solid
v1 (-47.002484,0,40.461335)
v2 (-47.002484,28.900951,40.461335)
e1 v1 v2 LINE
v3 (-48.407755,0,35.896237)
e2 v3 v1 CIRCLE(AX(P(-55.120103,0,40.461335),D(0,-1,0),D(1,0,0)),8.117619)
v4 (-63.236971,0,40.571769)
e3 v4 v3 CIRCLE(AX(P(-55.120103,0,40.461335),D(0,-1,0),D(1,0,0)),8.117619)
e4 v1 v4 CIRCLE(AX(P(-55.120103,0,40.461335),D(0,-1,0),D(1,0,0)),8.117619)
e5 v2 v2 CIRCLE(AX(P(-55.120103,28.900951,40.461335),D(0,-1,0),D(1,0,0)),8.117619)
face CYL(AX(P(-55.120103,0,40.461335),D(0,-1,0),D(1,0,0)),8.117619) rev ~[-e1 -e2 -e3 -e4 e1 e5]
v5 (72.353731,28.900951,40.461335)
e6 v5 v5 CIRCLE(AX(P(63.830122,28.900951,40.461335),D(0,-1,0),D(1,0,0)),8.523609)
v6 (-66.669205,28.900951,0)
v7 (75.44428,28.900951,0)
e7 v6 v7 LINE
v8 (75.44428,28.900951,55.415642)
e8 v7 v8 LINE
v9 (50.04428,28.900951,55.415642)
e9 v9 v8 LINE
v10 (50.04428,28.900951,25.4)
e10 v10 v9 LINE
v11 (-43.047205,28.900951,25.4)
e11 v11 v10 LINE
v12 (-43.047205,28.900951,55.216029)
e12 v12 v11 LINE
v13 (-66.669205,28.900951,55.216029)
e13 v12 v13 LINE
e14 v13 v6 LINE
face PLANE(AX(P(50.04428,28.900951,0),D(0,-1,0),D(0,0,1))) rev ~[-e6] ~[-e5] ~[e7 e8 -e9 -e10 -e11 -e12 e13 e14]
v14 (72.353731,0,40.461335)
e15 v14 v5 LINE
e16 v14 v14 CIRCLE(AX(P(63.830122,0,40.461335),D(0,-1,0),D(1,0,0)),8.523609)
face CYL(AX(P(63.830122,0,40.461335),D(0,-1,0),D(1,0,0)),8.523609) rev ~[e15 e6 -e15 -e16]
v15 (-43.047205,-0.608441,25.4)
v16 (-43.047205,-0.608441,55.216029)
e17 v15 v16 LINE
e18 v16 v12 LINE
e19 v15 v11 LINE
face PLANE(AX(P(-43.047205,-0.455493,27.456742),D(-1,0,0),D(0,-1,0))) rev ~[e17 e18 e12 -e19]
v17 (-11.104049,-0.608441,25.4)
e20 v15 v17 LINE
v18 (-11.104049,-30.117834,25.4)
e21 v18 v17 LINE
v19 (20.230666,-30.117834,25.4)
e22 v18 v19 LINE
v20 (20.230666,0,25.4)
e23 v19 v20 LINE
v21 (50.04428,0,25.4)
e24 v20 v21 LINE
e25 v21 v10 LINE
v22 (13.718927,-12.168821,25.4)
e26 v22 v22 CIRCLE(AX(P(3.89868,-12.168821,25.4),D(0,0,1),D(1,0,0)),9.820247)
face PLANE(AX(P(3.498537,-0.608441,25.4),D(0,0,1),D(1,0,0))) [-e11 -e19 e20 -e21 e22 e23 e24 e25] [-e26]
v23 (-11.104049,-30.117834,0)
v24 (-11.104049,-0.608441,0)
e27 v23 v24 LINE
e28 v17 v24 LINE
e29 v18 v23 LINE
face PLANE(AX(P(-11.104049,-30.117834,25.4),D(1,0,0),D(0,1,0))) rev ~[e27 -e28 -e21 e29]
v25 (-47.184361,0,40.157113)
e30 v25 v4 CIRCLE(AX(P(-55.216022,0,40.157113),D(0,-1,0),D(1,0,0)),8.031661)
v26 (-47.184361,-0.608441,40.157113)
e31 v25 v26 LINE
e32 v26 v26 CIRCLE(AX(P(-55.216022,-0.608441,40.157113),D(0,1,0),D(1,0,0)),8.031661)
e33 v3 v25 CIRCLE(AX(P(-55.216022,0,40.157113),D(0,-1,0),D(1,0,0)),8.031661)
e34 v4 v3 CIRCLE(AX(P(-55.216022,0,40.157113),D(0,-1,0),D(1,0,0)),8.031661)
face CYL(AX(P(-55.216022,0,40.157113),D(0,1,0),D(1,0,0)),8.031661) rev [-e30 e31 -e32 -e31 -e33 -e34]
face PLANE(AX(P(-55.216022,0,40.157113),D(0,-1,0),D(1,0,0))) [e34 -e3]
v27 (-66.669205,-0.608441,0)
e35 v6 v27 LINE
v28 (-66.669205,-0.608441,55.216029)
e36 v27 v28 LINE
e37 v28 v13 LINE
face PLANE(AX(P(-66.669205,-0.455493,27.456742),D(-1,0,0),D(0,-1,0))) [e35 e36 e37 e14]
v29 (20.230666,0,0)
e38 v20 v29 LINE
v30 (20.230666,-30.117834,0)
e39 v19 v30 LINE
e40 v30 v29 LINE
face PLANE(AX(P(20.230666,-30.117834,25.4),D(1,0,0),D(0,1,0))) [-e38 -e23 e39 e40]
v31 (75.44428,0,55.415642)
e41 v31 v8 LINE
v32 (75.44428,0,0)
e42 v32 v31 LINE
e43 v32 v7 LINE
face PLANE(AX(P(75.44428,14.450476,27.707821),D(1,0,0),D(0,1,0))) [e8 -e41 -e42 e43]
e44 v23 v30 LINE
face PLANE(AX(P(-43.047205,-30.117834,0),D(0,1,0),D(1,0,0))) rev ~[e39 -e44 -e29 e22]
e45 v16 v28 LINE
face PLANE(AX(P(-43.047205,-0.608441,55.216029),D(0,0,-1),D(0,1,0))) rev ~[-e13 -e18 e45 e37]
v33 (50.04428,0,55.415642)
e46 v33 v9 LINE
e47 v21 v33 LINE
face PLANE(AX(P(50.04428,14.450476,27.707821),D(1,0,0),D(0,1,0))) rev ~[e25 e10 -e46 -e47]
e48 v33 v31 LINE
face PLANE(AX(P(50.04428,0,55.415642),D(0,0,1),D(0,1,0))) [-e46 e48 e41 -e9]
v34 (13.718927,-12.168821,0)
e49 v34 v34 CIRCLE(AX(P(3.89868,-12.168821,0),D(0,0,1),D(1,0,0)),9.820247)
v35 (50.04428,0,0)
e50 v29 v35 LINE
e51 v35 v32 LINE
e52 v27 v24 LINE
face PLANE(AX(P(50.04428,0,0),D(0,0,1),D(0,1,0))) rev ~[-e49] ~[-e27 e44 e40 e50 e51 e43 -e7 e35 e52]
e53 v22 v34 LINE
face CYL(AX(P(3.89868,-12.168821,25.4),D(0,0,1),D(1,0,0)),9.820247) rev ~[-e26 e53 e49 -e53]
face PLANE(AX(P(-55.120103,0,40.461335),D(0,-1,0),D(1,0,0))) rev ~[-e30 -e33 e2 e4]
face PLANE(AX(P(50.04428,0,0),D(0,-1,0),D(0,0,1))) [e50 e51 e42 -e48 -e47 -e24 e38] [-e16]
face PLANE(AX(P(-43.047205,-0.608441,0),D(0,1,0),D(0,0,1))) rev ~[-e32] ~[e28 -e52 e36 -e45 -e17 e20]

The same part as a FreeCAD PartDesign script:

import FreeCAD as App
import Part
import Sketcher
from FreeCAD import Vector
Q = App.Units.Quantity

doc = App.newDocument("Part")
body = doc.addObject("PartDesign::Body", "Body")

# Sketch on XY plane
sketch1 = body.newObject("Sketcher::SketchObject", "Sketch")
sketch1.AttachmentSupport = (doc.getObject("XY_Plane"), [""])
sketch1.MapMode = "FlatFace"
sketch1.addGeometry([
    Part.LineSegment(Vector(-43, 29, 0), Vector(-43, -30, 0)),
    Part.LineSegment(Vector(-43, -30, 0), Vector(50, -30, 0)),
    Part.LineSegment(Vector(50, -30, 0), Vector(50, 29, 0)),
    Part.LineSegment(Vector(50, 29, 0), Vector(-43, 29, 0)),
], False)
sketch1.addConstraint([
    Sketcher.Constraint("Coincident", 0, 2, 1, 1),
    Sketcher.Constraint("Coincident", 1, 2, 2, 1),
    Sketcher.Constraint("Coincident", 2, 2, 3, 1),
    Sketcher.Constraint("Coincident", 3, 2, 0, 1),
    Sketcher.Constraint("Vertical", 0),
    Sketcher.Constraint("Horizontal", 1),
    Sketcher.Constraint("Vertical", 2),
    Sketcher.Constraint("Horizontal", 3),
    Sketcher.Constraint("DistanceX", 1, 1, 1, 2, Q("93.091484 mm")),
    Sketcher.Constraint("DistanceY", 0, 2, 0, 1, Q("59.018785 mm")),
    Sketcher.Constraint("DistanceX", -1, 1, 1, 2, Q("50.04428 mm")),
    Sketcher.Constraint("DistanceY", -1, 1, 2, 2, Q("28.900951 mm")),
])
pad1 = body.newObject("PartDesign::Pad", "Pad")
pad1.Profile = sketch1
pad1.Length = Q("1 in")

# Sketch on XY plane
sketch2 = body.newObject("Sketcher::SketchObject", "Sketch001")
sketch2.AttachmentSupport = (doc.getObject("XY_Plane"), [""])
sketch2.MapMode = "FlatFace"
sketch2.AttachmentOffset = App.Placement(Vector(0, 0, 1 * 25.4), App.Rotation())
sketch2.addGeometry([
    Part.LineSegment(Vector(20, 0, 0), Vector(20, -30, 0)),  # 0
    Part.LineSegment(Vector(20, -30, 0), Vector(50, -30, 0)),  # 1
    Part.LineSegment(Vector(50, -30, 0), Vector(50, 0, 0)),  # 2
    Part.LineSegment(Vector(50, 0, 0), Vector(20, 0, 0)),  # 3
    Part.LineSegment(Vector(-43, -1, 0), Vector(-43, -30, 0)),  # 4
    Part.LineSegment(Vector(-43, -30, 0), Vector(-11, -30, 0)),  # 5
    Part.LineSegment(Vector(-11, -30, 0), Vector(-11, -1, 0)),  # 6
    Part.LineSegment(Vector(-11, -1, 0), Vector(-43, -1, 0)),  # 7
], False)
sketch2.addConstraint([
    Sketcher.Constraint("Coincident", 0, 2, 1, 1),
    Sketcher.Constraint("Coincident", 1, 2, 2, 1),
    Sketcher.Constraint("Coincident", 2, 2, 3, 1),
    Sketcher.Constraint("Coincident", 3, 2, 0, 1),
    Sketcher.Constraint("Coincident", 4, 2, 5, 1),
    Sketcher.Constraint("Coincident", 5, 2, 6, 1),
    Sketcher.Constraint("Coincident", 6, 2, 7, 1),
    Sketcher.Constraint("Coincident", 7, 2, 4, 1),
    Sketcher.Constraint("Vertical", 0),
    Sketcher.Constraint("Horizontal", 1),
    Sketcher.Constraint("Vertical", 2),
    Sketcher.Constraint("Horizontal", 3),
    Sketcher.Constraint("Vertical", 4),
    Sketcher.Constraint("Horizontal", 5),
    Sketcher.Constraint("Vertical", 6),
    Sketcher.Constraint("Horizontal", 7),
    Sketcher.Constraint("PointOnObject", 2, 2, -1),
    Sketcher.Constraint("Horizontal", 1, 2, 4, 2),
    Sketcher.Constraint("DistanceX", 1, 1, 1, 2, Q("29.813614 mm")),
    Sketcher.Constraint("DistanceX", 5, 1, 5, 2, Q("31.943155 mm")),
    Sketcher.Constraint("DistanceY", 0, 2, 0, 1, Q("30.117834 mm")),
    Sketcher.Constraint("DistanceY", 4, 2, 4, 1, Q("29.509393 mm")),
    Sketcher.Constraint("DistanceX", -1, 1, 1, 2, Q("50.04428 mm")),
    Sketcher.Constraint("DistanceX", 5, 2, -1, 1, Q("11.104049 mm")),
])
pocket1 = body.newObject("PartDesign::Pocket", "Pocket")
pocket1.Profile = sketch2
pocket1.Length = Q("1 in")

# Sketch on YZ plane
sketch3 = body.newObject("Sketcher::SketchObject", "Sketch002")
sketch3.AttachmentSupport = (doc.getObject("YZ_Plane"), [""])
sketch3.MapMode = "FlatFace"
sketch3.AttachmentOffset = App.Placement(Vector(0, 0, -43.047205), App.Rotation())
sketch3.addGeometry([
    Part.LineSegment(Vector(-1, 0, 0), Vector(-1, 55, 0)),
    Part.LineSegment(Vector(-1, 55, 0), Vector(29, 55, 0)),
    Part.LineSegment(Vector(29, 55, 0), Vector(29, 0, 0)),
    Part.LineSegment(Vector(29, 0, 0), Vector(-1, 0, 0)),
], False)
sketch3.addConstraint([
    Sketcher.Constraint("Coincident", 0, 2, 1, 1),
    Sketcher.Constraint("Coincident", 1, 2, 2, 1),
    Sketcher.Constraint("Coincident", 2, 2, 3, 1),
    Sketcher.Constraint("Coincident", 3, 2, 0, 1),
    Sketcher.Constraint("Vertical", 0),
    Sketcher.Constraint("Horizontal", 1),
    Sketcher.Constraint("Vertical", 2),
    Sketcher.Constraint("Horizontal", 3),
    Sketcher.Constraint("PointOnObject", 2, 2, -1),
    Sketcher.Constraint("DistanceY", 0, 1, 0, 2, Q("55.216029 mm")),
    Sketcher.Constraint("DistanceX", 1, 1, 1, 2, Q("29.509393 mm")),
    Sketcher.Constraint("DistanceX", 0, 2, -1, 1, Q("0.608441 mm")),
])
pad2 = body.newObject("PartDesign::Pad", "Pad001")
pad2.Profile = sketch3
pad2.Length = Q("0.93 in")
pad2.Reversed = True

# Sketch on YZ plane
sketch4 = body.newObject("Sketcher::SketchObject", "Sketch003")
sketch4.AttachmentSupport = (doc.getObject("YZ_Plane"), [""])
sketch4.MapMode = "FlatFace"
sketch4.AttachmentOffset = App.Placement(Vector(0, 0, 50.04428), App.Rotation())
sketch4.addGeometry([
    Part.LineSegment(Vector(0, 55, 0), Vector(0, 0, 0)),
    Part.LineSegment(Vector(0, 0, 0), Vector(29, 0, 0)),
    Part.LineSegment(Vector(29, 0, 0), Vector(29, 55, 0)),
    Part.LineSegment(Vector(29, 55, 0), Vector(0, 55, 0)),
], False)
sketch4.addConstraint([
    Sketcher.Constraint("Coincident", 0, 2, 1, 1),
    Sketcher.Constraint("Coincident", 1, 2, 2, 1),
    Sketcher.Constraint("Coincident", 2, 2, 3, 1),
    Sketcher.Constraint("Coincident", 3, 2, 0, 1),
    Sketcher.Constraint("Vertical", 0),
    Sketcher.Constraint("Horizontal", 1),
    Sketcher.Constraint("Vertical", 2),
    Sketcher.Constraint("Horizontal", 3),
    Sketcher.Constraint("Coincident", 0, 2, -1, 1),
    Sketcher.Constraint("DistanceX", 1, 1, 1, 2, Q("28.900951 mm")),
    Sketcher.Constraint("DistanceY", 0, 2, 0, 1, Q("55.415642 mm")),
])
pad3 = body.newObject("PartDesign::Pad", "Pad002")
pad3.Profile = sketch4
pad3.Length = Q("1 in")

# Sketch on XY plane
sketch5 = body.newObject("Sketcher::SketchObject", "Sketch004")
sketch5.AttachmentSupport = (doc.getObject("XY_Plane"), [""])
sketch5.MapMode = "FlatFace"
sketch5.AttachmentOffset = App.Placement(Vector(0, 0, 1 * 25.4), App.Rotation())
sketch5.addGeometry(Part.Circle(Vector(4, -12, 0), Vector(0, 0, 1), 10), False)
sketch5.addConstraint([
    Sketcher.Constraint("Diameter", 0, Q("19.640494 mm")),
    Sketcher.Constraint("DistanceX", -1, 1, 0, 3, Q("3.89868 mm")),
    Sketcher.Constraint("DistanceY", 0, 3, -1, 1, Q("12.168821 mm")),
])
pocket2 = body.newObject("PartDesign::Pocket", "Pocket001")
pocket2.Profile = sketch5
pocket2.Length = Q("1.32 in")

# Sketch on XZ plane
sketch6 = body.newObject("Sketcher::SketchObject", "Sketch005")
sketch6.AttachmentSupport = (doc.getObject("XZ_Plane"), [""])
sketch6.MapMode = "FlatFace"
sketch6.addGeometry([
    Part.Circle(Vector(-55, 40, 0), Vector(0, 0, 1), 8),
    Part.Circle(Vector(64, 40, 0), Vector(0, 0, 1), 9),
], False)
sketch6.addConstraint([
    Sketcher.Constraint("Horizontal", 0, 3, 1, 3),
    Sketcher.Constraint("Diameter", 0, Q("16.235239 mm")),
    Sketcher.Constraint("Diameter", 1, Q("17.047218 mm")),
    Sketcher.Constraint("DistanceX", 0, 3, -1, 1, Q("55.120103 mm")),
    Sketcher.Constraint("DistanceY", -1, 1, 0, 3, Q("40.461335 mm")),
    Sketcher.Constraint("DistanceX", -1, 1, 1, 3, Q("63.830122 mm")),
])
pocket3 = body.newObject("PartDesign::Pocket", "Pocket002")
pocket3.Profile = sketch6
pocket3.Length = Q("1.5 in")

# Sketch on XZ plane
sketch7 = body.newObject("Sketcher::SketchObject", "Sketch006")
sketch7.AttachmentSupport = (doc.getObject("XZ_Plane"), [""])
sketch7.MapMode = "FlatFace"
sketch7.addGeometry(Part.Circle(Vector(-55, 40, 0), Vector(0, 0, 1), 8), False)
sketch7.addConstraint([
    Sketcher.Constraint("Diameter", 0, Q("16.063321 mm")),
    Sketcher.Constraint("DistanceX", 0, 3, -1, 1, Q("55.216022 mm")),
    Sketcher.Constraint("DistanceY", -1, 1, 0, 3, Q("40.157113 mm")),
])
pocket4 = body.newObject("PartDesign::Pocket", "Pocket003")
pocket4.Profile = sketch7
pocket4.Length = Q("2.4 in")
pocket4.Reversed = True

doc.recompute()
